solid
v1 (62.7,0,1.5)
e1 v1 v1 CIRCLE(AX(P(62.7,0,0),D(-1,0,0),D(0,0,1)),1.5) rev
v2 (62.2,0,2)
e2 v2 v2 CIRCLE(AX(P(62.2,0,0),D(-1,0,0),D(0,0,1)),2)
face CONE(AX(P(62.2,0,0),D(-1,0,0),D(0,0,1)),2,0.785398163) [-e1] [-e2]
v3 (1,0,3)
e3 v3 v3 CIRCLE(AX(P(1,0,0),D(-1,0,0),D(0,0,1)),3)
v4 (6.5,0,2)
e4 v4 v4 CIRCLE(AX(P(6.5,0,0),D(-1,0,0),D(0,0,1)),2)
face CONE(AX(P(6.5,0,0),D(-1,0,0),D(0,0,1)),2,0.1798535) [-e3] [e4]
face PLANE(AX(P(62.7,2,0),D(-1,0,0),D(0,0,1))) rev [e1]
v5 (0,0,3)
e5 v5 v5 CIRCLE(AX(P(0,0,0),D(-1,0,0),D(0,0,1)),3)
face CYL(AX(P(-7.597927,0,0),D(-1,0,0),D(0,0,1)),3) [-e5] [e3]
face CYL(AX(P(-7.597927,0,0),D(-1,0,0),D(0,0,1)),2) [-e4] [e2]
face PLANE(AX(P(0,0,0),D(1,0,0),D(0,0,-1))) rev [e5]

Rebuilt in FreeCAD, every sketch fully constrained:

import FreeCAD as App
import Part
import Sketcher
Q = App.Units.Quantity


def edges_at(feature, points):
    """Names of the edges that pass closest to the given points."""
    edges = feature.Shape.Edges
    near = lambda p: min(range(len(edges)), key=lambda i: edges[i].distToShape(Part.Vertex(*p))[0])
    return sorted({f"Edge{near(p) + 1}" for p in points})


def add_polygon(sketch, points):
    """Adds a closed chain of lines whose ends are joined by coincident constraints."""
    first, n = sketch.GeometryCount, len(points)
    for a, b in zip(points, points[1:] + points[:1]):
        sketch.addGeometry(Part.LineSegment(App.Vector(*a, 0), App.Vector(*b, 0)), False)
    for i in range(n):
        sketch.addConstraint(Sketcher.Constraint("Coincident", first + i, 2, first + (i + 1) % n, 1))

doc = App.newDocument("Part")
body = doc.addObject("PartDesign::Body", "Body")

# Sketch on XY plane
sketch1 = body.newObject("Sketcher::SketchObject", "Sketch")
sketch1.AttachmentSupport = (doc.getObject("XY_Plane"), [""])
sketch1.MapMode = "FlatFace"
add_polygon(sketch1, [(0, 3), (0, 0), (62.7, 0), (62.7, 2), (6.5, 2), (1, 3)])  # lines 0-5
sketch1.addConstraint([
    Sketcher.Constraint("Vertical", 0),
    Sketcher.Constraint("Horizontal", 1),
    Sketcher.Constraint("Vertical", 2),
    Sketcher.Constraint("Horizontal", 3),
    Sketcher.Constraint("Horizontal", 5),
    Sketcher.Constraint("Coincident", 0, 2, -1, 1),
    Sketcher.Constraint("DistanceX", 5, 2, 5, 1, Q("1 mm")),
    Sketcher.Constraint("DistanceY", 0, 2, 0, 1, Q("3 mm")),
    Sketcher.Constraint("DistanceY", 2, 1, 2, 2, Q("2 mm")),
    Sketcher.Constraint("DistanceX", 1, 1, 1, 2, Q("62.7 mm")),
    Sketcher.Constraint("DistanceX", 3, 2, 3, 1, Q("56.2 mm")),
])
revolution = body.newObject("PartDesign::Revolution", "Revolution")
revolution.Profile = sketch1
revolution.ReferenceAxis = (sketch1, ["H_Axis"])
revolution.Angle = 360
doc.recompute()

chamfer = body.newObject("PartDesign::Chamfer", "Chamfer")
chamfer.Base = (revolution, edges_at(revolution, [(62.7, 0, -2)]))
chamfer.Size = 0.5

doc.recompute()
